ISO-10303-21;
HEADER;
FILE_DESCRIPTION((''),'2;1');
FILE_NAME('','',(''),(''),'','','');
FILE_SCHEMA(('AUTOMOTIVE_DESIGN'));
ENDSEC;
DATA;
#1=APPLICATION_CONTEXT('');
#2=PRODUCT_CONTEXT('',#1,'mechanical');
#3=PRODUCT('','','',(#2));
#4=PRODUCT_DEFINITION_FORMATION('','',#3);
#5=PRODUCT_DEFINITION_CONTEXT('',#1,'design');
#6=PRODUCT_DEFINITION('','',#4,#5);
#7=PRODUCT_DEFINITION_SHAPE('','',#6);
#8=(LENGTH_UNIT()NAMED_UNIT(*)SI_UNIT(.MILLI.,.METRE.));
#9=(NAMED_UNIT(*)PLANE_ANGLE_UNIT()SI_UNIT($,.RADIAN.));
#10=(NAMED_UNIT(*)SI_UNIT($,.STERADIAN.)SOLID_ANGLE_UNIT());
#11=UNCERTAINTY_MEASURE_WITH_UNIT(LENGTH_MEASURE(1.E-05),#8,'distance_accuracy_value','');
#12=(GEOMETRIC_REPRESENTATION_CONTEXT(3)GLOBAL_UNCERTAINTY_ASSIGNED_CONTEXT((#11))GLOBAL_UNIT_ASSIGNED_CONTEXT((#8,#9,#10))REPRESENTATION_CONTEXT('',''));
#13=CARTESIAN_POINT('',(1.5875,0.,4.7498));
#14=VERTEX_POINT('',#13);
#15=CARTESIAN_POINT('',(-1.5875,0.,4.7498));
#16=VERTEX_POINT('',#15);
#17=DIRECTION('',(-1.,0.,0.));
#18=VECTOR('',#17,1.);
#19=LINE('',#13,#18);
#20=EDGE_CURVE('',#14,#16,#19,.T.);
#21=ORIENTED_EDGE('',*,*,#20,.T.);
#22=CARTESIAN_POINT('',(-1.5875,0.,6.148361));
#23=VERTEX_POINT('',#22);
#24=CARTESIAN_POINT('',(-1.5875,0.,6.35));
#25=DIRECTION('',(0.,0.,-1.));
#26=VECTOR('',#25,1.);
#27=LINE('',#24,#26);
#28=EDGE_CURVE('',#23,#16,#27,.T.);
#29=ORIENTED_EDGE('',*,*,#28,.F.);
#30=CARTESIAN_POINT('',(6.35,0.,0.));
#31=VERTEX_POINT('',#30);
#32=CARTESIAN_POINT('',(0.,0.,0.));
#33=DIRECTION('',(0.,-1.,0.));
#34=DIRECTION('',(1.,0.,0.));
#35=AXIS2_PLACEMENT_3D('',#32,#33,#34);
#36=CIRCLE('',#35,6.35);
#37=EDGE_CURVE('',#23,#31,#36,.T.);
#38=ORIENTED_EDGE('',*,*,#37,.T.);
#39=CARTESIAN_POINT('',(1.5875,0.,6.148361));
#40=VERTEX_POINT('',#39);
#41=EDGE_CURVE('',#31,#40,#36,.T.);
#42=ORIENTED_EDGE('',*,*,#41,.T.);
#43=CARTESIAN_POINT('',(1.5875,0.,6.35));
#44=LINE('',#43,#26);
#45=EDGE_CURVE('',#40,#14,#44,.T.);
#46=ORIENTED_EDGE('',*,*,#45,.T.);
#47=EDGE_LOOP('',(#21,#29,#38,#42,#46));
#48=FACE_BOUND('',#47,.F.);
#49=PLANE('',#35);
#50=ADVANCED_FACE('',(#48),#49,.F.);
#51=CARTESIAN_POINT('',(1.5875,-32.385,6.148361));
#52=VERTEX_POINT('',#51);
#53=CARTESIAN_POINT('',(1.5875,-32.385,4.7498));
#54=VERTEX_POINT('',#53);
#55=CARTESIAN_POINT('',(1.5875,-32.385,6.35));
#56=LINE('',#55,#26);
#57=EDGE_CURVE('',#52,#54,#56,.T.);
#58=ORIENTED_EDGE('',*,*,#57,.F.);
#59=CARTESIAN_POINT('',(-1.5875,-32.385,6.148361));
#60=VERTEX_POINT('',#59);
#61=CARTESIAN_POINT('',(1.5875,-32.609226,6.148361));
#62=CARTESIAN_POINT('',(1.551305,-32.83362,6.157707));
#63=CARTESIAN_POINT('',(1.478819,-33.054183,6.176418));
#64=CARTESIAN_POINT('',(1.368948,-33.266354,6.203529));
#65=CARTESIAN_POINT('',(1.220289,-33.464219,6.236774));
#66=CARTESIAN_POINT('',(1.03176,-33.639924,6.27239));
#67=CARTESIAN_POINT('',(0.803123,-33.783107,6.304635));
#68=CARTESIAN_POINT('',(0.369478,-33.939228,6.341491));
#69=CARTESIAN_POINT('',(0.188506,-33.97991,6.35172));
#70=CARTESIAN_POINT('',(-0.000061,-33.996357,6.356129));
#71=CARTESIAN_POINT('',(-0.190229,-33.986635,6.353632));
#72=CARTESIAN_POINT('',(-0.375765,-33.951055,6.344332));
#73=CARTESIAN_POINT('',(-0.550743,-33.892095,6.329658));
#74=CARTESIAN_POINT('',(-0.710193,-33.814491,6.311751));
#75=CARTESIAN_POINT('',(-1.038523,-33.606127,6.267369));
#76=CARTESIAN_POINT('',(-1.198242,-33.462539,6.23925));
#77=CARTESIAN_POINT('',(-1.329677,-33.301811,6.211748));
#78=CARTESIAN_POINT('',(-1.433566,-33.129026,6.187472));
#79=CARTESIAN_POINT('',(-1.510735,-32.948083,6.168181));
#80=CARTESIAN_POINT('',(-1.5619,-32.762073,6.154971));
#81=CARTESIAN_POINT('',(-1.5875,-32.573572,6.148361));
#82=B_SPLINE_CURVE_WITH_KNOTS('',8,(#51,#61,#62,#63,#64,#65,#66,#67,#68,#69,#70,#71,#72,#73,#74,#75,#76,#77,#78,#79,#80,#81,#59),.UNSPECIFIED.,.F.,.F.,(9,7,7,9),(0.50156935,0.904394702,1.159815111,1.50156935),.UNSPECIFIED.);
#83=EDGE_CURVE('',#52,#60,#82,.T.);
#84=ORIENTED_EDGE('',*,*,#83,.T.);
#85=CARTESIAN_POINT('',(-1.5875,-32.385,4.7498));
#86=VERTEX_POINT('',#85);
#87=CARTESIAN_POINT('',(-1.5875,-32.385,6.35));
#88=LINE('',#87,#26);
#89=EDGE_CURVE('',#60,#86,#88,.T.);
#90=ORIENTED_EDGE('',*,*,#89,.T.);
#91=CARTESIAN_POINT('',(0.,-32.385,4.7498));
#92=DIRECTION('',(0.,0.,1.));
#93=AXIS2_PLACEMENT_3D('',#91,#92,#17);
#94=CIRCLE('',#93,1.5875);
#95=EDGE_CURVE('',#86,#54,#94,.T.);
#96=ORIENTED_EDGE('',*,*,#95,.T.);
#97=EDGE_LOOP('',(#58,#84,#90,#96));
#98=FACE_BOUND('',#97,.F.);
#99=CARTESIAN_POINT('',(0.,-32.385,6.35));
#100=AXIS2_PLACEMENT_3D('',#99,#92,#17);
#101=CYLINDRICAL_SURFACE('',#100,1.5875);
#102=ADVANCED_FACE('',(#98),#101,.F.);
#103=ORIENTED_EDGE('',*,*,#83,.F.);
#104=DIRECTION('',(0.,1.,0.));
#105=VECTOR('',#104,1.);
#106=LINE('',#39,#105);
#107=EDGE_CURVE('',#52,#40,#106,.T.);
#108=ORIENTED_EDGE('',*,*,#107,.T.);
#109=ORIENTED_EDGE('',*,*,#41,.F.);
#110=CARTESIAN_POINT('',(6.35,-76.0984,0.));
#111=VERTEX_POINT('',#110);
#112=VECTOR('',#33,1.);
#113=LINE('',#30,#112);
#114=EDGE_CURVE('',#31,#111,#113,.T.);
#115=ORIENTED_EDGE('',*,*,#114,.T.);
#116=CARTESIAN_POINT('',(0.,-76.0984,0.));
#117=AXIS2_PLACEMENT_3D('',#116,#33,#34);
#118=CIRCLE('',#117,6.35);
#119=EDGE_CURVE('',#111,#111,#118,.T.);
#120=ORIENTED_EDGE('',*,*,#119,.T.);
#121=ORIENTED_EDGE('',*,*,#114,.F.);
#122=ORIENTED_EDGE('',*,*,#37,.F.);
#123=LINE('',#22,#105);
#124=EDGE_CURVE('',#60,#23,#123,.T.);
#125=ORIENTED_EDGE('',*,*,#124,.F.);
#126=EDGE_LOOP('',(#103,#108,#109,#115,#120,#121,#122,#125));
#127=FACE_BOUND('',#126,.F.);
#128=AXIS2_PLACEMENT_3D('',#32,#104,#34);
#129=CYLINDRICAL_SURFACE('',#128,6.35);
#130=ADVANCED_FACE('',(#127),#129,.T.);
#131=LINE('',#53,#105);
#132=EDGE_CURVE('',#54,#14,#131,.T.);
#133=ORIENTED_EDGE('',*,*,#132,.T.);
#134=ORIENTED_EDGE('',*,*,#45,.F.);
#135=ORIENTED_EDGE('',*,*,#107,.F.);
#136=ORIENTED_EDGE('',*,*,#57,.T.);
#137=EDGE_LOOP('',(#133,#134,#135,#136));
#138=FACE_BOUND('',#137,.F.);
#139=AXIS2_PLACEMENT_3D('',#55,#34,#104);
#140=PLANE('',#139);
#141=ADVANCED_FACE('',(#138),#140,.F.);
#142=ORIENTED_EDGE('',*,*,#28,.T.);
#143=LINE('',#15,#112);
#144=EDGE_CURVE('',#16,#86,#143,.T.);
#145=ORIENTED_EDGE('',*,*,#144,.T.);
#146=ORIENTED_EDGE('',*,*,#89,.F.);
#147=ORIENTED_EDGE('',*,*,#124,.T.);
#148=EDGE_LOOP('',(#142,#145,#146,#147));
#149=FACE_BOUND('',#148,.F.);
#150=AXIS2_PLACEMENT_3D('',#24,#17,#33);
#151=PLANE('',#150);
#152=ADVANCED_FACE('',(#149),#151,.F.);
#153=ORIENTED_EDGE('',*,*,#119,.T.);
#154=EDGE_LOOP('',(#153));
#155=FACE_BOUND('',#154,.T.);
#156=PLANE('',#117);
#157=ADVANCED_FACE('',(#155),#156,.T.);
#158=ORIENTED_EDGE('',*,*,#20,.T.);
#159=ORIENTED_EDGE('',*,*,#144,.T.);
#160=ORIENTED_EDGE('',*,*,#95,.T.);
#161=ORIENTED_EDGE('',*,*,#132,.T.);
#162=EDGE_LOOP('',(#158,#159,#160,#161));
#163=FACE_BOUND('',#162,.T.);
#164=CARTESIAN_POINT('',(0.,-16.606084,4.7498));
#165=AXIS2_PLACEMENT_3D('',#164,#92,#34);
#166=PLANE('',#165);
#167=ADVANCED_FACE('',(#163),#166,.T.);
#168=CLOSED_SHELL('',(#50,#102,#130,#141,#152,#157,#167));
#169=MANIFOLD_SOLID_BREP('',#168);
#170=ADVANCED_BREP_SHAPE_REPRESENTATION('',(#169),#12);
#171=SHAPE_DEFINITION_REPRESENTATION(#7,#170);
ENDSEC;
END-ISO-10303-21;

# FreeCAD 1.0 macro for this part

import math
import FreeCAD as App
import Part
import Sketcher
from FreeCAD import Vector
Q = App.Units.Quantity

doc = App.newDocument("Part")
body = doc.addObject("PartDesign::Body", "Body")

sketch1 = doc.addObject("Sketcher::SketchObject", "Sketch")
body.addObject(sketch1)
sketch1.AttachmentSupport = (doc.XZ_Plane, [""])
sketch1.MapMode = "FlatFace"
sketch1.addGeometry(Part.Circle(Vector(0, 0, 0), Vector(0, 0, 1), 6), False)
sketch1.addConstraint([
    Sketcher.Constraint("Coincident", 0, 3, -1, 1),
    Sketcher.Constraint("Diameter", 0, Q("0.5 in")),
])
pad1 = doc.addObject("PartDesign::Pad", "Pad")
body.addObject(pad1)
pad1.Profile = sketch1
pad1.Length = Q("2.996 in")

sketch2 = doc.addObject("Sketcher::SketchObject", "Sketch001")
body.addObject(sketch2)
sketch2.AttachmentSupport = (doc.XY_Plane, [""])
sketch2.MapMode = "FlatFace"
sketch2.AttachmentOffset = App.Placement(Vector(0, 0, 0.25 * 25.4), App.Rotation())
sketch2.addGeometry([
    Part.LineSegment(Vector(-1.6, 0, 0), Vector(-1.6, -32.4, 0)),
    Part.ArcOfCircle(Part.Circle(Vector(0, -32.4, 0), Vector(0, 0, 1), 1.6), math.radians(180), math.radians(360)),
    Part.LineSegment(Vector(1.6, -32.4, 0), Vector(1.6, 0, 0)),
    Part.LineSegment(Vector(1.6, 0, 0), Vector(-1.6, 0, 0)),
], False)
sketch2.addConstraint([
    Sketcher.Constraint("Tangent", 0, 2, 1, 1),
    Sketcher.Constraint("Tangent", 1, 2, 2, 1),
    Sketcher.Constraint("Coincident", 2, 2, 3, 1),
    Sketcher.Constraint("Coincident", 3, 2, 0, 1),
    Sketcher.Constraint("Vertical", 0),
    Sketcher.Constraint("Vertical", 2),
    Sketcher.Constraint("Horizontal", 3),
    Sketcher.Constraint("Symmetric", 2, 2, 3, 2, -1, 1),
    Sketcher.Constraint("Radius", 1, Q("0.0625 in")),
    Sketcher.Constraint("DistanceY", 0, 2, 0, 1, Q("1.275 in")),
])
pocket1 = doc.addObject("PartDesign::Pocket", "Pocket")
body.addObject(pocket1)
pocket1.Profile = sketch2
pocket1.Length = Q("0.063 in")

doc.recompute()
